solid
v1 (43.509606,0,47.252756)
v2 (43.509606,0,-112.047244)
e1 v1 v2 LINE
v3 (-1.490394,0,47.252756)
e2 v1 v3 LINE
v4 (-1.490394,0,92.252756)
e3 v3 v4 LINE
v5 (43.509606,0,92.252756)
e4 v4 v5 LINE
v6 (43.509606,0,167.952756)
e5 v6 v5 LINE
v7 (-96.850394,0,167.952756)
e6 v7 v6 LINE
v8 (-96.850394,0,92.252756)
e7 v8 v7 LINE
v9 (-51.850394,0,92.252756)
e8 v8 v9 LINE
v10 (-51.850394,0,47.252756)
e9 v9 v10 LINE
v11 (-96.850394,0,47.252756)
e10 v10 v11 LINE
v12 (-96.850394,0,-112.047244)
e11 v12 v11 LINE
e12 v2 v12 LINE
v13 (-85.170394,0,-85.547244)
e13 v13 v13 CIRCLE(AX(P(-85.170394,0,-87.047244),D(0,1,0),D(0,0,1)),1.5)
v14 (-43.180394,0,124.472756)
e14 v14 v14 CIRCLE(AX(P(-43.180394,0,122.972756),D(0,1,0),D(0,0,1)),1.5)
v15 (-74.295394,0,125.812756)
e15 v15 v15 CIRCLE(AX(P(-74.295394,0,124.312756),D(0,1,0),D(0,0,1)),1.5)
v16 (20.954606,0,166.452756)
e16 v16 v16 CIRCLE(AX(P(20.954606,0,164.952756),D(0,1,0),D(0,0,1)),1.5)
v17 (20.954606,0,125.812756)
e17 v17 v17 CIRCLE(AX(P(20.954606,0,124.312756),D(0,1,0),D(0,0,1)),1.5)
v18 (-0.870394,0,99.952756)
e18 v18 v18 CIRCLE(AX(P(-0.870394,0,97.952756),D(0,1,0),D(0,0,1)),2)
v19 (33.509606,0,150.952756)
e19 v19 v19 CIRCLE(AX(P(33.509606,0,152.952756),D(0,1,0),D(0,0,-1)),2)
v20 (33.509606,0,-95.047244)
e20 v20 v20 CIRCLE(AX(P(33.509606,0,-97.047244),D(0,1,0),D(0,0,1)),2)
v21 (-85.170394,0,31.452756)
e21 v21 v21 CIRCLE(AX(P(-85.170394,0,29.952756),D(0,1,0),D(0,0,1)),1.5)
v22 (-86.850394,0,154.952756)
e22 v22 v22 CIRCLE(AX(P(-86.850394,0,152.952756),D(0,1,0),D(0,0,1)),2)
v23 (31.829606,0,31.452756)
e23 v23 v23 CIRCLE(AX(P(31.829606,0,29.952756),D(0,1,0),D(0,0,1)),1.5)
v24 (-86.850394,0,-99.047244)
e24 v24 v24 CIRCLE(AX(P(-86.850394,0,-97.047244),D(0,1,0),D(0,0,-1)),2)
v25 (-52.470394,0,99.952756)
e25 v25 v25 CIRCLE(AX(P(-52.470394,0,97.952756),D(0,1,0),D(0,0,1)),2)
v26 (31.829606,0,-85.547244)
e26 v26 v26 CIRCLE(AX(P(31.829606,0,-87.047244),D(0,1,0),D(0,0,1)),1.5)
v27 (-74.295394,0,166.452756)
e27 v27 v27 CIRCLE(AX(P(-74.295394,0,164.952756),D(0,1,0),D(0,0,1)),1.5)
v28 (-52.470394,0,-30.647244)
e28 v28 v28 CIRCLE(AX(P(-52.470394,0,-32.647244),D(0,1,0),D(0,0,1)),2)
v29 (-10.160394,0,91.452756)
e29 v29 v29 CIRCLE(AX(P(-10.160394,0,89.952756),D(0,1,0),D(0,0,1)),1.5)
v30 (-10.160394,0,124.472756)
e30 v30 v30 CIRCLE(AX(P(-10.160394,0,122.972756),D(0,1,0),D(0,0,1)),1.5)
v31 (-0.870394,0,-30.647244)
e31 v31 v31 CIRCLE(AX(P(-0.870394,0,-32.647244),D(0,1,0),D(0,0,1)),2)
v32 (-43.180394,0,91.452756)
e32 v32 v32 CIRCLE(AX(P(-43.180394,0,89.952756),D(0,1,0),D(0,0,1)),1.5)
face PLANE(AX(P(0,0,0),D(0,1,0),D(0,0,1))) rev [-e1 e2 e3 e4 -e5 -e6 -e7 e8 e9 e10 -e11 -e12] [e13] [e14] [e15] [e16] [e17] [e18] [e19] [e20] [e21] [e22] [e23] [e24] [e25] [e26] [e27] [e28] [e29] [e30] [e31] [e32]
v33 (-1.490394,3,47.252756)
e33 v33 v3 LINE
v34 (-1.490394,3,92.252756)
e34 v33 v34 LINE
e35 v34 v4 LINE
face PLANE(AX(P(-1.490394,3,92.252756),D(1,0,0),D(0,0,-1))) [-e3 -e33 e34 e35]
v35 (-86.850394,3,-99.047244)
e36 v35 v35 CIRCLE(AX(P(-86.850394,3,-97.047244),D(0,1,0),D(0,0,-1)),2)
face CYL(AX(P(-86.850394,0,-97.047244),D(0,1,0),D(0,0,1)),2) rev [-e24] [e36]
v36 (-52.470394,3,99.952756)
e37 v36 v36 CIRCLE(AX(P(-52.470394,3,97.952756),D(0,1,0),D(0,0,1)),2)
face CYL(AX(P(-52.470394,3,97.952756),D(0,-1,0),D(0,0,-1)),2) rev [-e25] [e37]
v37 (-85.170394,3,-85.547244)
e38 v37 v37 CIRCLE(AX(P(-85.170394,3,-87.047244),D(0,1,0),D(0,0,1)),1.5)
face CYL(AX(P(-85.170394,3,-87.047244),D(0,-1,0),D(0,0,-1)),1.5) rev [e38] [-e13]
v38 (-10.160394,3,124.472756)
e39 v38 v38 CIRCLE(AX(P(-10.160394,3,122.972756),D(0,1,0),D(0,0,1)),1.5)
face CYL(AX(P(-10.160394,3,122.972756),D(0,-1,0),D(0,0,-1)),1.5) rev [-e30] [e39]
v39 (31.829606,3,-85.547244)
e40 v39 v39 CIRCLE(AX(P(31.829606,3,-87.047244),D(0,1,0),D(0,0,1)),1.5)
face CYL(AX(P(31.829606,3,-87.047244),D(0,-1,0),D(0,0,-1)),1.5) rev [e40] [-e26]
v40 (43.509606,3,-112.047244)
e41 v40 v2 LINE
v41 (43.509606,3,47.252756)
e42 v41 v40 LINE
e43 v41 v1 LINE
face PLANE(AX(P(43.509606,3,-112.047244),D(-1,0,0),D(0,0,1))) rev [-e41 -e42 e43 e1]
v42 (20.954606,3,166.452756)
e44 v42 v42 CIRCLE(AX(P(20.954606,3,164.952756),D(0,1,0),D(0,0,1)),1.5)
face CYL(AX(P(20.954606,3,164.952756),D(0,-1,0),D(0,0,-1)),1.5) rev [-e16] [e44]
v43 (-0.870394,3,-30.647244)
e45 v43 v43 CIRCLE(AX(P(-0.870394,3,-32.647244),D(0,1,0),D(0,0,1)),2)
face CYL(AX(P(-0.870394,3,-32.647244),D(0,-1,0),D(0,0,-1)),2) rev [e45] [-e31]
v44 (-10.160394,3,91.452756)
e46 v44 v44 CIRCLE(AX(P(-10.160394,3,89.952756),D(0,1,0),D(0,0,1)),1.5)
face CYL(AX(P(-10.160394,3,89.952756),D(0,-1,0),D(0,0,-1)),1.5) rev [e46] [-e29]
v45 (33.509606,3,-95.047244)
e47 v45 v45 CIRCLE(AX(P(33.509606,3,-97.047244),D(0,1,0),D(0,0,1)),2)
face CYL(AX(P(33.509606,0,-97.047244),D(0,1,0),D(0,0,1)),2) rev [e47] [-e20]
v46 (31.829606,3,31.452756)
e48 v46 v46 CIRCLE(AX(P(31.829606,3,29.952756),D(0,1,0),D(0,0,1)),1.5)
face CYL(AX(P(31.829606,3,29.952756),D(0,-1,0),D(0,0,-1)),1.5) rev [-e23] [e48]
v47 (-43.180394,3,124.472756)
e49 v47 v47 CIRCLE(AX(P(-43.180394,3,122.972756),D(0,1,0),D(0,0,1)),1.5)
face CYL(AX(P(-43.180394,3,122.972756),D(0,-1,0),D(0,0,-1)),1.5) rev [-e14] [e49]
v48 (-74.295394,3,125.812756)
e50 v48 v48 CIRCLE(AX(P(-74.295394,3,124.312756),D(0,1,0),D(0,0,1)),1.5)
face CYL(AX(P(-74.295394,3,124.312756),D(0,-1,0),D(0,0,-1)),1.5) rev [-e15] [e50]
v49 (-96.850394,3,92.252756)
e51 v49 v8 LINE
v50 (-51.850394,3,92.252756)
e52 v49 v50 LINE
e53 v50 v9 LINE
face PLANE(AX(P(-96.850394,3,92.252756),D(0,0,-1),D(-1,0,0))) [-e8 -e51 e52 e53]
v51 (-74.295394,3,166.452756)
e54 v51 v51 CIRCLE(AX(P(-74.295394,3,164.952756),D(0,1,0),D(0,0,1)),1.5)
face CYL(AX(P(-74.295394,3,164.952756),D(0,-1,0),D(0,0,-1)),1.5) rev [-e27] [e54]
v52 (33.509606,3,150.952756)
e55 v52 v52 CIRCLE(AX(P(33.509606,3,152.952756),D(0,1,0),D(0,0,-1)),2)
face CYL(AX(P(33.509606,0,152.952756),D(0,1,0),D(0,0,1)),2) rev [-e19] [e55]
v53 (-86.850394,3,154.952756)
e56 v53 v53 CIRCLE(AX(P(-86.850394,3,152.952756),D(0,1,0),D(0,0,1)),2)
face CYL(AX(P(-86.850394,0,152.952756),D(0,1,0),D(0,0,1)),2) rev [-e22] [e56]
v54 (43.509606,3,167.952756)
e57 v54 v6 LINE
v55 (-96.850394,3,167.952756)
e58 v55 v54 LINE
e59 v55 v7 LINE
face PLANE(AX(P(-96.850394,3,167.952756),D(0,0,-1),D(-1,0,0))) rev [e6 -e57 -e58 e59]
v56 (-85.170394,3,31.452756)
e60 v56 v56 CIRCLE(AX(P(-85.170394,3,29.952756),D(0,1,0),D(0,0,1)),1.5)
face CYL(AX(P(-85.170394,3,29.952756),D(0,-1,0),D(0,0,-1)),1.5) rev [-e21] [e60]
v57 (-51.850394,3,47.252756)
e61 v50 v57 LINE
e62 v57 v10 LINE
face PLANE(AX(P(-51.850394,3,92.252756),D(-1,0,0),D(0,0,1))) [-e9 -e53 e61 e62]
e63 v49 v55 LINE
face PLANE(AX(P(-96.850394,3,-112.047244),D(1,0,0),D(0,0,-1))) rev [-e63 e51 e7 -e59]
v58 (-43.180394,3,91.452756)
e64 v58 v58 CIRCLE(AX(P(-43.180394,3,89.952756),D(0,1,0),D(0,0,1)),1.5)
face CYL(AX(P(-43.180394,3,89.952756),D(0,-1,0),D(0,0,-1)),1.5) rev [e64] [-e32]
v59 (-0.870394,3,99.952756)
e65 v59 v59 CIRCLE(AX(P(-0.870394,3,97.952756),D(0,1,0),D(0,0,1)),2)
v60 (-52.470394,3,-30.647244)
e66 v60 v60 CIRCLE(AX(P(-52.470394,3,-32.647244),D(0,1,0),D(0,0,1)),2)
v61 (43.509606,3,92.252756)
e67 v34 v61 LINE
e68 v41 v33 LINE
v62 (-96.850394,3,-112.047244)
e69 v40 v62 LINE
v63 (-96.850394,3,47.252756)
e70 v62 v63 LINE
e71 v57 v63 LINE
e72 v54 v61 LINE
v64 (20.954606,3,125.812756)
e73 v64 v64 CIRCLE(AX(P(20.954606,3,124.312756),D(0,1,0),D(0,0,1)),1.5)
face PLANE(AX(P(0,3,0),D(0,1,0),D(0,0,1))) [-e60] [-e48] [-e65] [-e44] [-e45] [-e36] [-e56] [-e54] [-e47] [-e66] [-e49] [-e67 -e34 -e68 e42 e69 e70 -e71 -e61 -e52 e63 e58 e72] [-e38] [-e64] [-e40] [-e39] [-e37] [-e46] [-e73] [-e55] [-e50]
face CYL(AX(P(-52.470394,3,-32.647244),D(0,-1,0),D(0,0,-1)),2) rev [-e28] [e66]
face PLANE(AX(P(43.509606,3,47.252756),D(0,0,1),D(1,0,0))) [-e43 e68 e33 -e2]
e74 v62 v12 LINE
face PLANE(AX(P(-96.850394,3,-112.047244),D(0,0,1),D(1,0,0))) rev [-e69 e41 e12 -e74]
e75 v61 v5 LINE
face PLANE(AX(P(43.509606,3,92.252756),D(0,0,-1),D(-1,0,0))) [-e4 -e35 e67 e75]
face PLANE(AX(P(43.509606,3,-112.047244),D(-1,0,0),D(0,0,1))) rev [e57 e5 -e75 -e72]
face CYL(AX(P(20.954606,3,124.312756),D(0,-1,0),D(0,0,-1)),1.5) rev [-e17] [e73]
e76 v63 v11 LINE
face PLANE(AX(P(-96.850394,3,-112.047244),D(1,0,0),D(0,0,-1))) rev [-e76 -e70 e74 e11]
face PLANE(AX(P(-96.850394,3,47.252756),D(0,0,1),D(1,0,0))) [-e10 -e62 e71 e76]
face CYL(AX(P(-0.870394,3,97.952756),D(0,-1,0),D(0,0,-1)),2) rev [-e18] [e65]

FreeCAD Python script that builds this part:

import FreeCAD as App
import Part
import Sketcher
from FreeCAD import Vector


def add_polygon(sketch, points):
    """Adds a closed chain of lines whose ends are joined by coincident constraints."""
    first, n = sketch.GeometryCount, len(points)
    for a, b in zip(points, points[1:] + points[:1]):
        sketch.addGeometry(Part.LineSegment(App.Vector(*a, 0), App.Vector(*b, 0)), False)
    for i in range(n):
        sketch.addConstraint(Sketcher.Constraint("Coincident", first + i, 2, first + (i + 1) % n, 1))

doc = App.newDocument("Part")
params = doc.addObject("Spreadsheet::Sheet", "Params")
for row, (alias, value) in enumerate([
    ("sketch1_height", "280 mm"),
    ("sketch1_width", "140.36 mm"),
    ("pad1_length", "3 mm"),
    ("sketch2_diameter", "4 mm"),
    ("sketch3_width", "45 mm"),
    ("sketch4_diameter", "3 mm"),
    ("sketch4_diameter2", "4 mm"),
], start=1):
    params.set(f"A{row}", alias)
    params.set(f"B{row}", "=" + value)
    params.setAlias(f"B{row}", alias)

body = doc.addObject("PartDesign::Body", "Body")

# Sketch on XZ plane
sketch1 = body.newObject("Sketcher::SketchObject", "Sketch")
sketch1.AttachmentSupport = (doc.getObject("XZ_Plane"), [""])
sketch1.MapMode = "FlatFace"
add_polygon(sketch1, [(-97, -112), (-97, 168), (44, 168), (44, -112)])  # lines 0-3
sketch1.addConstraint(Sketcher.Constraint("Vertical", 0))
sketch1.addConstraint(Sketcher.Constraint("Horizontal", 1))
sketch1.addConstraint(Sketcher.Constraint("Vertical", 2))
sketch1.addConstraint(Sketcher.Constraint("Horizontal", 3))
sketch1.addConstraint(Sketcher.Constraint("DistanceY", 0, 1, 0, 2, 280.0))
sketch1.addConstraint(Sketcher.Constraint("DistanceX", 1, 1, 1, 2, 140.36))
sketch1.addConstraint(Sketcher.Constraint("DistanceX", 0, 2, -1, 1, 96.850394))
sketch1.addConstraint(Sketcher.Constraint("DistanceY", -1, 1, 0, 2, 167.952756))
sketch1.setExpression("Constraints[8]", "Params.sketch1_height")
sketch1.setExpression("Constraints[9]", "Params.sketch1_width")
pad1 = body.newObject("PartDesign::Pad", "Pad")
pad1.Profile = sketch1
pad1.setExpression("Length", "Params.pad1_length")
pad1.Reversed = True

# Sketch on XZ plane
sketch2 = body.newObject("Sketcher::SketchObject", "Sketch001")
sketch2.AttachmentSupport = (doc.getObject("XZ_Plane"), [""])
sketch2.MapMode = "FlatFace"
sketch2.AttachmentOffset = App.Placement(Vector(0, 0, -3), App.Rotation())
sketch2.addGeometry(Part.Circle(Vector(-86.9, 153, 0), Vector(0, 0, 1), 2), False)
sketch2.addGeometry(Part.Circle(Vector(33.5, 153, 0), Vector(0, 0, 1), 2), False)
sketch2.addGeometry(Part.Circle(Vector(-86.9, -97, 0), Vector(0, 0, 1), 2), False)
sketch2.addGeometry(Part.Circle(Vector(33.5, -97, 0), Vector(0, 0, 1), 2), False)
sketch2.addConstraint(Sketcher.Constraint("Equal", 0, 1))
sketch2.addConstraint(Sketcher.Constraint("Equal", 1, 2))
sketch2.addConstraint(Sketcher.Constraint("Equal", 2, 3))
sketch2.addConstraint(Sketcher.Constraint("Horizontal", 0, 3, 1, 3))
sketch2.addConstraint(Sketcher.Constraint("Horizontal", 2, 3, 3, 3))
sketch2.addConstraint(Sketcher.Constraint("Vertical", 0, 3, 2, 3))
sketch2.addConstraint(Sketcher.Constraint("Vertical", 1, 3, 3, 3))
sketch2.addConstraint(Sketcher.Constraint("Diameter", 0, 4.0))
sketch2.addConstraint(Sketcher.Constraint("DistanceY", 2, 3, 0, 3, 250.0))
sketch2.addConstraint(Sketcher.Constraint("DistanceX", 0, 3, 1, 3, 120.36))
sketch2.addConstraint(Sketcher.Constraint("DistanceX", 0, 3, -1, 1, 86.850394))
sketch2.addConstraint(Sketcher.Constraint("DistanceY", -1, 1, 0, 3, 152.952756))
sketch2.setExpression("Constraints[7]", "Params.sketch2_diameter")
pocket1 = body.newObject("PartDesign::Pocket", "Pocket")
pocket1.Profile = sketch2
pocket1.Type = "ThroughAll"
pocket1.Reversed = True

# Sketch on XZ plane
sketch3 = body.newObject("Sketcher::SketchObject", "Sketch002")
sketch3.AttachmentSupport = (doc.getObject("XZ_Plane"), [""])
sketch3.MapMode = "FlatFace"
add_polygon(sketch3, [(-97, 47), (-97, 92), (-52, 92), (-52, 47)])  # lines 0-3
add_polygon(sketch3, [(-1, 47), (-1, 92), (44, 92), (44, 47)])  # lines 4-7
sketch3.addConstraint(Sketcher.Constraint("Vertical", 0))
sketch3.addConstraint(Sketcher.Constraint("Horizontal", 1))
sketch3.addConstraint(Sketcher.Constraint("Vertical", 2))
sketch3.addConstraint(Sketcher.Constraint("Horizontal", 3))
sketch3.addConstraint(Sketcher.Constraint("Vertical", 4))
sketch3.addConstraint(Sketcher.Constraint("Horizontal", 5))
sketch3.addConstraint(Sketcher.Constraint("Vertical", 6))
sketch3.addConstraint(Sketcher.Constraint("Horizontal", 7))
sketch3.addConstraint(Sketcher.Constraint("Horizontal", 1, 2, 4, 2))
sketch3.addConstraint(Sketcher.Constraint("Horizontal", 3, 2, 6, 2))
sketch3.addConstraint(Sketcher.Constraint("Equal", 3, 5))
sketch3.addConstraint(Sketcher.Constraint("Equal", 7, 0))
sketch3.addConstraint(Sketcher.Constraint("DistanceX", 1, 1, 1, 2, 45.0))
sketch3.addConstraint(Sketcher.Constraint("DistanceX", 1, 2, 4, 2, 50.36))
sketch3.addConstraint(Sketcher.Constraint("DistanceX", 0, 2, -1, 1, 96.850394))
sketch3.addConstraint(Sketcher.Constraint("DistanceY", -1, 1, 0, 2, 92.252756))
sketch3.setExpression("Constraints[20]", "Params.sketch3_width")
pocket2 = body.newObject("PartDesign::Pocket", "Pocket001")
pocket2.Profile = sketch3
pocket2.Type = "ThroughAll"

# Sketch on XZ plane
sketch4 = body.newObject("Sketcher::SketchObject", "Sketch003")
sketch4.AttachmentSupport = (doc.getObject("XZ_Plane"), [""])
sketch4.MapMode = "FlatFace"
sketch4.addGeometry(Part.Circle(Vector(-85.2, -87, 0), Vector(0, 0, 1), 1.5), False)
sketch4.addGeometry(Part.Circle(Vector(-85.2, 30, 0), Vector(0, 0, 1), 1.5), False)
sketch4.addGeometry(Part.Circle(Vector(31.8, 30, 0), Vector(0, 0, 1), 1.5), False)
sketch4.addGeometry(Part.Circle(Vector(31.8, -87, 0), Vector(0, 0, 1), 1.5), False)
sketch4.addGeometry(Part.Circle(Vector(-43.2, 90, 0), Vector(0, 0, 1), 1.5), False)
sketch4.addGeometry(Part.Circle(Vector(-10.2, 90, 0), Vector(0, 0, 1), 1.5), False)
sketch4.addGeometry(Part.Circle(Vector(-10.2, 123, 0), Vector(0, 0, 1), 1.5), False)
sketch4.addGeometry(Part.Circle(Vector(-43.2, 123, 0), Vector(0, 0, 1), 1.5), False)
sketch4.addGeometry(Part.Circle(Vector(-52.5, 98, 0), Vector(0, 0, 1), 2), False)
sketch4.addGeometry(Part.Circle(Vector(-0.9, 98, 0), Vector(0, 0, 1), 2), False)
sketch4.addGeometry(Part.Circle(Vector(-0.9, -32.6, 0), Vector(0, 0, 1), 2), False)
sketch4.addGeometry(Part.Circle(Vector(-52.5, -32.6, 0), Vector(0, 0, 1), 2), False)
sketch4.addGeometry(Part.Circle(Vector(-74.3, 124.3, 0), Vector(0, 0, 1), 1.5), False)
sketch4.addGeometry(Part.Circle(Vector(21, 124.3, 0), Vector(0, 0, 1), 1.5), False)
sketch4.addGeometry(Part.Circle(Vector(21, 165, 0), Vector(0, 0, 1), 1.5), False)
sketch4.addGeometry(Part.Circle(Vector(-74.3, 165, 0), Vector(0, 0, 1), 1.5), False)
sketch4.addConstraint(Sketcher.Constraint("Equal", 0, 1))
sketch4.addConstraint(Sketcher.Constraint("Equal", 1, 2))
sketch4.addConstraint(Sketcher.Constraint("Equal", 2, 3))
sketch4.addConstraint(Sketcher.Constraint("Equal", 3, 4))
sketch4.addConstraint(Sketcher.Constraint("Equal", 4, 5))
sketch4.addConstraint(Sketcher.Constraint("Equal", 5, 6))
sketch4.addConstraint(Sketcher.Constraint("Equal", 6, 7))
sketch4.addConstraint(Sketcher.Constraint("Equal", 8, 9))
sketch4.addConstraint(Sketcher.Constraint("Equal", 9, 10))
sketch4.addConstraint(Sketcher.Constraint("Equal", 10, 11))
sketch4.addConstraint(Sketcher.Constraint("Equal", 7, 12))
sketch4.addConstraint(Sketcher.Constraint("Equal", 12, 13))
sketch4.addConstraint(Sketcher.Constraint("Equal", 13, 14))
sketch4.addConstraint(Sketcher.Constraint("Equal", 14, 15))
sketch4.addConstraint(Sketcher.Constraint("Horizontal", 1, 3, 2, 3))
sketch4.addConstraint(Sketcher.Constraint("Horizontal", 0, 3, 3, 3))
sketch4.addConstraint(Sketcher.Constraint("Horizontal", 4, 3, 5, 3))
sketch4.addConstraint(Sketcher.Constraint("Horizontal", 6, 3, 7, 3))
sketch4.addConstraint(Sketcher.Constraint("Horizontal", 8, 3, 9, 3))
sketch4.addConstraint(Sketcher.Constraint("Horizontal", 10, 3, 11, 3))
sketch4.addConstraint(Sketcher.Constraint("Horizontal", 12, 3, 13, 3))
sketch4.addConstraint(Sketcher.Constraint("Horizontal", 14, 3, 15, 3))
sketch4.addConstraint(Sketcher.Constraint("Vertical", 0, 3, 1, 3))
sketch4.addConstraint(Sketcher.Constraint("Vertical", 2, 3, 3, 3))
sketch4.addConstraint(Sketcher.Constraint("Vertical", 5, 3, 6, 3))
sketch4.addConstraint(Sketcher.Constraint("Vertical", 4, 3, 7, 3))
sketch4.addConstraint(Sketcher.Constraint("Vertical", 9, 3, 10, 3))
sketch4.addConstraint(Sketcher.Constraint("Vertical", 8, 3, 11, 3))
sketch4.addConstraint(Sketcher.Constraint("Vertical", 13, 3, 14, 3))
sketch4.addConstraint(Sketcher.Constraint("Vertical", 12, 3, 15, 3))
sketch4.addConstraint(Sketcher.Constraint("Diameter", 0, 3.0))
sketch4.addConstraint(Sketcher.Constraint("Diameter", 8, 4.0))
sketch4.addConstraint(Sketcher.Constraint("DistanceY", 0, 3, 1, 3, 117.0))
sketch4.addConstraint(Sketcher.Constraint("DistanceX", 1, 3, 2, 3, 117.0))
sketch4.addConstraint(Sketcher.Constraint("DistanceY", 1, 3, 4, 3, 60.0))
sketch4.addConstraint(Sketcher.Constraint("DistanceY", 4, 3, 8, 3, 8.0))
sketch4.addConstraint(Sketcher.Constraint("DistanceY", 9, 3, 14, 3, 67.0))
sketch4.addConstraint(Sketcher.Constraint("DistanceX", 1, 3, 8, 3, 32.7))
sketch4.addConstraint(Sketcher.Constraint("DistanceX", 8, 3, 9, 3, 51.6))
sketch4.addConstraint(Sketcher.Constraint("DistanceY", 3, 3, 10, 3, 54.4))
sketch4.addConstraint(Sketcher.Constraint("DistanceX", 1, 3, 4, 3, 41.99))
sketch4.addConstraint(Sketcher.Constraint("DistanceX", 4, 3, 5, 3, 33.02))
sketch4.addConstraint(Sketcher.Constraint("DistanceY", 5, 3, 6, 3, 33.02))
sketch4.addConstraint(Sketcher.Constraint("DistanceY", 7, 3, 12, 3, 1.34))
sketch4.addConstraint(Sketcher.Constraint("DistanceX", 12, 3, 7, 3, 31.115))
sketch4.addConstraint(Sketcher.Constraint("DistanceX", 6, 3, 13, 3, 31.115))
sketch4.addConstraint(Sketcher.Constraint("DistanceX", 0, 3, -1, 1, 85.170394))
sketch4.addConstraint(Sketcher.Constraint("DistanceY", 0, 3, -1, 1, 87.047244))
sketch4.setExpression("Constraints[30]", "Params.sketch4_diameter")
sketch4.setExpression("Constraints[31]", "Params.sketch4_diameter2")
pocket3 = body.newObject("PartDesign::Pocket", "Pocket002")
pocket3.Profile = sketch4
pocket3.Type = "ThroughAll"

doc.recompute()
